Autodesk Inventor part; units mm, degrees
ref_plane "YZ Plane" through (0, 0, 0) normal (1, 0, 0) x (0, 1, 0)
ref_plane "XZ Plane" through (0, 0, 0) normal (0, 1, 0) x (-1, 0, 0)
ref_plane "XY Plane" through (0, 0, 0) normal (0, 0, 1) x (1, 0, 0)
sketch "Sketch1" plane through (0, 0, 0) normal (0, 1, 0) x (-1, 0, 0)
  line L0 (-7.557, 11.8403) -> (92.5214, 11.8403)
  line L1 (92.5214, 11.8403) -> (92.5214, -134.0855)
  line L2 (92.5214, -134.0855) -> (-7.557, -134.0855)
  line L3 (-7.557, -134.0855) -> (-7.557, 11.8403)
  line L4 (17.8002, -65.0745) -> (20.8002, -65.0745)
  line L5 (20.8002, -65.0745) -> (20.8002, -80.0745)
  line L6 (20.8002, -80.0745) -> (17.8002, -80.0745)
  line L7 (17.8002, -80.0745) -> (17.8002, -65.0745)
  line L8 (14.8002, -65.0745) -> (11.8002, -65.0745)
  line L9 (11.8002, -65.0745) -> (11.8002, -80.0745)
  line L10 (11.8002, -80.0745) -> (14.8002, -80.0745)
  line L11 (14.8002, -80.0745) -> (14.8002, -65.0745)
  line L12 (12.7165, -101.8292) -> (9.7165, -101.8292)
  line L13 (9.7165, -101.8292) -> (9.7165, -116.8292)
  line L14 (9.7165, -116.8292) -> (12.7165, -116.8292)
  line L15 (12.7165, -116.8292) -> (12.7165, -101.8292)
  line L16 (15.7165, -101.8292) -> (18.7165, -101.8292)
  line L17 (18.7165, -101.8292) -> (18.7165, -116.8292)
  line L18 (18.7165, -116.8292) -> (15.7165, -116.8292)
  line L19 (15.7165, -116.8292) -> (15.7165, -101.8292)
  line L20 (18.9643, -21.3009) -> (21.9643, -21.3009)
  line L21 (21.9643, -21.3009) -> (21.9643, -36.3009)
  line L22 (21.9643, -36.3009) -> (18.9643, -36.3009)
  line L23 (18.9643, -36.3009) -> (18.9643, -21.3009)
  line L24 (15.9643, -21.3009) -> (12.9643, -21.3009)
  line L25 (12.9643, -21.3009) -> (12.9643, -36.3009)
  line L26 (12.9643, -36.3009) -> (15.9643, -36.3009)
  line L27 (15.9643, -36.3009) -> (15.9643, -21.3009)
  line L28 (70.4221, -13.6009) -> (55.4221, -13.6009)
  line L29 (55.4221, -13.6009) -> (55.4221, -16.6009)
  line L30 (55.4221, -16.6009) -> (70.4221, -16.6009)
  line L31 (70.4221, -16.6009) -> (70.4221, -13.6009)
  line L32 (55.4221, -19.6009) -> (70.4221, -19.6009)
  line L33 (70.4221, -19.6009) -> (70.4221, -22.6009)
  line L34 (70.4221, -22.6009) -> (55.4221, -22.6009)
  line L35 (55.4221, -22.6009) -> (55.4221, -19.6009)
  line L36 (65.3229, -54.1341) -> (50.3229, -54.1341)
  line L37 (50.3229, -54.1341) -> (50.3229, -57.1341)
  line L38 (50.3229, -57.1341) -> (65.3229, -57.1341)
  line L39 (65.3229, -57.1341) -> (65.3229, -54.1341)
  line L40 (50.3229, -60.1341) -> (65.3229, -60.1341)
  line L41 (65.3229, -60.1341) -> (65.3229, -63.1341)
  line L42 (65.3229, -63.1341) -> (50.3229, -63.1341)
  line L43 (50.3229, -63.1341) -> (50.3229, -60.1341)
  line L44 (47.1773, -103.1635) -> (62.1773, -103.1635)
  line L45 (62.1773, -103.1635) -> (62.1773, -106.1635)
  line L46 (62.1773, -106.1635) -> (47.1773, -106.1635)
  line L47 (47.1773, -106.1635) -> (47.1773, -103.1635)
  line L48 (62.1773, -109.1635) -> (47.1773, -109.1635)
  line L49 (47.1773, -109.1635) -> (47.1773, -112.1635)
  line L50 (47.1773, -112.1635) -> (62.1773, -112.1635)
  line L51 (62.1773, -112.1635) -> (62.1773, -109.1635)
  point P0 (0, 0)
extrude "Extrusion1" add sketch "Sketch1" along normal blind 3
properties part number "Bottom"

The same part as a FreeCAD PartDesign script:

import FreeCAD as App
import Part
import Sketcher
from FreeCAD import Vector
Q = App.Units.Quantity


def add_polygon(sketch, points):
    """Adds a closed chain of lines whose ends are joined by coincident constraints."""
    first, n = sketch.GeometryCount, len(points)
    for a, b in zip(points, points[1:] + points[:1]):
        sketch.addGeometry(Part.LineSegment(App.Vector(*a, 0), App.Vector(*b, 0)), False)
    for i in range(n):
        sketch.addConstraint(Sketcher.Constraint("Coincident", first + i, 2, first + (i + 1) % n, 1))

doc = App.newDocument("Part")
params = doc.addObject("Spreadsheet::Sheet", "Params")
for row, (alias, value) in enumerate([
    ("sketch1_width", "3 mm"),
    ("sketch1_width2", "15 mm"),
    ("pad1_length", "3 mm"),
], start=1):
    params.set(f"A{row}", alias)
    params.set(f"B{row}", "=" + value)
    params.setAlias(f"B{row}", alias)

body = doc.addObject("PartDesign::Body", "Body")

sketch1 = body.newObject("Sketcher::SketchObject", "Sketch")
sketch1.AttachmentSupport = (doc.getObject("XZ_Plane"), [""])
sketch1.MapMode = "FlatFace"
add_polygon(sketch1, [(-92.5, 11.8), (7.6, 11.8), (7.6, -134.1), (-92.5, -134.1)])
add_polygon(sketch1, [(-9.7, -101.8), (-12.7, -101.8), (-12.7, -116.8), (-9.7, -116.8)])
add_polygon(sketch1, [(-15.7, -116.8), (-15.7, -101.8), (-18.7, -101.8), (-18.7, -116.8)])
add_polygon(sketch1, [(-11.8, -65.1), (-14.8, -65.1), (-14.8, -80.1), (-11.8, -80.1)])
add_polygon(sketch1, [(-17.8, -80.1), (-17.8, -65.1), (-20.8, -65.1), (-20.8, -80.1)])
add_polygon(sketch1, [(-47.2, -109.2), (-62.2, -109.2), (-62.2, -112.2), (-47.2, -112.2)])
add_polygon(sketch1, [(-47.2, -106.2), (-47.2, -103.2), (-62.2, -103.2), (-62.2, -106.2)])
add_polygon(sketch1, [(-50.3, -63.1), (-50.3, -60.1), (-65.3, -60.1), (-65.3, -63.1)])
add_polygon(sketch1, [(-13, -21.3), (-16, -21.3), (-16, -36.3), (-13, -36.3)])
add_polygon(sketch1, [(-19, -36.3), (-19, -21.3), (-22, -21.3), (-22, -36.3)])
add_polygon(sketch1, [(-50.3, -54.1), (-65.3, -54.1), (-65.3, -57.1), (-50.3, -57.1)])
add_polygon(sketch1, [(-55.4, -22.6), (-55.4, -19.6), (-70.4, -19.6), (-70.4, -22.6)])
add_polygon(sketch1, [(-55.4, -13.6), (-70.4, -13.6), (-70.4, -16.6), (-55.4, -16.6)])
sketch1.addConstraint([
    Sketcher.Constraint("Horizontal", 0),
    Sketcher.Constraint("Vertical", 1),
    Sketcher.Constraint("Horizontal", 2),
    Sketcher.Constraint("Vertical", 3),
    Sketcher.Constraint("Horizontal", 4),
    Sketcher.Constraint("Vertical", 5),
    Sketcher.Constraint("Horizontal", 6),
    Sketcher.Constraint("Vertical", 7),
    Sketcher.Constraint("Vertical", 8),
    Sketcher.Constraint("Horizontal", 9),
    Sketcher.Constraint("Vertical", 10),
    Sketcher.Constraint("Horizontal", 11),
    Sketcher.Constraint("Horizontal", 12),
    Sketcher.Constraint("Vertical", 13),
    Sketcher.Constraint("Horizontal", 14),
    Sketcher.Constraint("Vertical", 15),
    Sketcher.Constraint("Vertical", 16),
    Sketcher.Constraint("Horizontal", 17),
    Sketcher.Constraint("Vertical", 18),
    Sketcher.Constraint("Horizontal", 19),
    Sketcher.Constraint("Horizontal", 20),
    Sketcher.Constraint("Vertical", 21),
    Sketcher.Constraint("Horizontal", 22),
    Sketcher.Constraint("Vertical", 23),
    Sketcher.Constraint("Vertical", 24),
    Sketcher.Constraint("Horizontal", 25),
    Sketcher.Constraint("Vertical", 26),
    Sketcher.Constraint("Horizontal", 27),
    Sketcher.Constraint("Vertical", 28),
    Sketcher.Constraint("Horizontal", 29),
    Sketcher.Constraint("Vertical", 30),
    Sketcher.Constraint("Horizontal", 31),
    Sketcher.Constraint("Horizontal", 32),
    Sketcher.Constraint("Vertical", 33),
    Sketcher.Constraint("Horizontal", 34),
    Sketcher.Constraint("Vertical", 35),
    Sketcher.Constraint("Vertical", 36),
    Sketcher.Constraint("Horizontal", 37),
    Sketcher.Constraint("Vertical", 38),
    Sketcher.Constraint("Horizontal", 39),
    Sketcher.Constraint("Horizontal", 40),
    Sketcher.Constraint("Vertical", 41),
    Sketcher.Constraint("Horizontal", 42),
    Sketcher.Constraint("Vertical", 43),
    Sketcher.Constraint("Vertical", 44),
    Sketcher.Constraint("Horizontal", 45),
    Sketcher.Constraint("Vertical", 46),
    Sketcher.Constraint("Horizontal", 47),
    Sketcher.Constraint("Horizontal", 48),
    Sketcher.Constraint("Vertical", 49),
    Sketcher.Constraint("Horizontal", 50),
    Sketcher.Constraint("Vertical", 51),
    Sketcher.Constraint("Horizontal", 7, 2, 8, 2),
    Sketcher.Constraint("Horizontal", 6, 2, 10, 2),
    Sketcher.Constraint("Horizontal", 15, 2, 16, 2),
    Sketcher.Constraint("Horizontal", 14, 2, 18, 2),
    Sketcher.Constraint("Horizontal", 35, 2, 36, 2),
    Sketcher.Constraint("Horizontal", 34, 2, 38, 2),
    Sketcher.Constraint("Vertical", 23, 2, 24, 2),
    Sketcher.Constraint("Vertical", 21, 2, 25, 2),
    Sketcher.Constraint("Vertical", 30, 2, 40, 2),
    Sketcher.Constraint("Vertical", 31, 2, 42, 2),
    Sketcher.Constraint("Vertical", 46, 2, 48, 2),
    Sketcher.Constraint("Vertical", 47, 2, 50, 2),
    Sketcher.Constraint("Equal", 6, 9),
    Sketcher.Constraint("Equal", 11, 12),
    Sketcher.Constraint("Equal", 14, 17),
    Sketcher.Constraint("Equal", 27, 29),
    Sketcher.Constraint("Equal", 19, 32),
    Sketcher.Constraint("Equal", 34, 37),
    Sketcher.Constraint("Equal", 42, 45),
    Sketcher.Constraint("Equal", 50, 5),
    Sketcher.Constraint("Equal", 10, 13),
    Sketcher.Constraint("Equal", 39, 21),
    Sketcher.Constraint("Equal", 23, 24),
    Sketcher.Constraint("Equal", 26, 28),
    Sketcher.Constraint("Equal", 18, 33),
    Sketcher.Constraint("Equal", 30, 41),
    Sketcher.Constraint("Equal", 43, 44),
    Sketcher.Constraint("Equal", 46, 49),
    Sketcher.Constraint("DistanceX", 4, 2, 4, 1, Q("3 mm")),
    Sketcher.Constraint("DistanceX", 20, 2, 20, 1, Q("15 mm")),
    Sketcher.Constraint("DistanceX", 8, 2, 4, 2, Q("3 mm")),
    Sketcher.Constraint("DistanceX", 16, 2, 12, 2, Q("3 mm")),
    Sketcher.Constraint("DistanceY", 23, 2, 24, 2, Q("6 mm")),
    Sketcher.Constraint("DistanceX", 36, 2, 32, 2, Q("3 mm")),
    Sketcher.Constraint("DistanceY", 29, 2, 40, 2, Q("6 mm")),
    Sketcher.Constraint("DistanceY", 45, 2, 48, 2, Q("6 mm")),
    Sketcher.Constraint("DistanceY", 37, 2, 44, 2, Q("1.7 mm")),
    Sketcher.Constraint("DistanceX", 0, 1, 0, 2, Q("100.0784 mm")),
    Sketcher.Constraint("DistanceY", 1, 2, 1, 1, Q("145.9258 mm")),
    Sketcher.Constraint("DistanceX", -1, 1, 0, 2, Q("7.557 mm")),
    Sketcher.Constraint("DistanceX", 28, 2, -1, 1, Q("50.323 mm")),
    Sketcher.Constraint("DistanceY", 28, 2, -1, 1, Q("60.134 mm")),
    Sketcher.Constraint("DistanceY", 32, 2, -1, 1, Q("21.301 mm")),
    Sketcher.Constraint("DistanceX", 44, 2, -1, 1, Q("55.422 mm")),
    Sketcher.Constraint("DistanceX", 2, 2, 4, 2, Q("79.805 mm")),
    Sketcher.Constraint("DistanceX", 2, 2, 20, 2, Q("30.344 mm")),
    Sketcher.Constraint("DistanceY", 2, 2, 20, 2, Q("24.922 mm")),
    Sketcher.Constraint("DistanceX", 32, 2, 12, 2, Q("1.164 mm")),
    Sketcher.Constraint("DistanceY", -1, 1, 0, 2, Q("11.8403 mm")),
    Sketcher.Constraint("DistanceY", 4, 2, -1, 1, Q("101.8292 mm")),
    Sketcher.Constraint("DistanceX", 12, 2, -1, 1, Q("14.8002 mm")),
    Sketcher.Constraint("DistanceY", 12, 2, -1, 1, Q("65.0745 mm")),
])
sketch1.setExpression("Constraints[132]", "Params.sketch1_width")
sketch1.setExpression("Constraints[133]", "Params.sketch1_width2")
pad1 = body.newObject("PartDesign::Pad", "Pad")
pad1.Profile = sketch1
pad1.setExpression("Length", "Params.pad1_length")
pad1.Reversed = True

doc.recompute()
